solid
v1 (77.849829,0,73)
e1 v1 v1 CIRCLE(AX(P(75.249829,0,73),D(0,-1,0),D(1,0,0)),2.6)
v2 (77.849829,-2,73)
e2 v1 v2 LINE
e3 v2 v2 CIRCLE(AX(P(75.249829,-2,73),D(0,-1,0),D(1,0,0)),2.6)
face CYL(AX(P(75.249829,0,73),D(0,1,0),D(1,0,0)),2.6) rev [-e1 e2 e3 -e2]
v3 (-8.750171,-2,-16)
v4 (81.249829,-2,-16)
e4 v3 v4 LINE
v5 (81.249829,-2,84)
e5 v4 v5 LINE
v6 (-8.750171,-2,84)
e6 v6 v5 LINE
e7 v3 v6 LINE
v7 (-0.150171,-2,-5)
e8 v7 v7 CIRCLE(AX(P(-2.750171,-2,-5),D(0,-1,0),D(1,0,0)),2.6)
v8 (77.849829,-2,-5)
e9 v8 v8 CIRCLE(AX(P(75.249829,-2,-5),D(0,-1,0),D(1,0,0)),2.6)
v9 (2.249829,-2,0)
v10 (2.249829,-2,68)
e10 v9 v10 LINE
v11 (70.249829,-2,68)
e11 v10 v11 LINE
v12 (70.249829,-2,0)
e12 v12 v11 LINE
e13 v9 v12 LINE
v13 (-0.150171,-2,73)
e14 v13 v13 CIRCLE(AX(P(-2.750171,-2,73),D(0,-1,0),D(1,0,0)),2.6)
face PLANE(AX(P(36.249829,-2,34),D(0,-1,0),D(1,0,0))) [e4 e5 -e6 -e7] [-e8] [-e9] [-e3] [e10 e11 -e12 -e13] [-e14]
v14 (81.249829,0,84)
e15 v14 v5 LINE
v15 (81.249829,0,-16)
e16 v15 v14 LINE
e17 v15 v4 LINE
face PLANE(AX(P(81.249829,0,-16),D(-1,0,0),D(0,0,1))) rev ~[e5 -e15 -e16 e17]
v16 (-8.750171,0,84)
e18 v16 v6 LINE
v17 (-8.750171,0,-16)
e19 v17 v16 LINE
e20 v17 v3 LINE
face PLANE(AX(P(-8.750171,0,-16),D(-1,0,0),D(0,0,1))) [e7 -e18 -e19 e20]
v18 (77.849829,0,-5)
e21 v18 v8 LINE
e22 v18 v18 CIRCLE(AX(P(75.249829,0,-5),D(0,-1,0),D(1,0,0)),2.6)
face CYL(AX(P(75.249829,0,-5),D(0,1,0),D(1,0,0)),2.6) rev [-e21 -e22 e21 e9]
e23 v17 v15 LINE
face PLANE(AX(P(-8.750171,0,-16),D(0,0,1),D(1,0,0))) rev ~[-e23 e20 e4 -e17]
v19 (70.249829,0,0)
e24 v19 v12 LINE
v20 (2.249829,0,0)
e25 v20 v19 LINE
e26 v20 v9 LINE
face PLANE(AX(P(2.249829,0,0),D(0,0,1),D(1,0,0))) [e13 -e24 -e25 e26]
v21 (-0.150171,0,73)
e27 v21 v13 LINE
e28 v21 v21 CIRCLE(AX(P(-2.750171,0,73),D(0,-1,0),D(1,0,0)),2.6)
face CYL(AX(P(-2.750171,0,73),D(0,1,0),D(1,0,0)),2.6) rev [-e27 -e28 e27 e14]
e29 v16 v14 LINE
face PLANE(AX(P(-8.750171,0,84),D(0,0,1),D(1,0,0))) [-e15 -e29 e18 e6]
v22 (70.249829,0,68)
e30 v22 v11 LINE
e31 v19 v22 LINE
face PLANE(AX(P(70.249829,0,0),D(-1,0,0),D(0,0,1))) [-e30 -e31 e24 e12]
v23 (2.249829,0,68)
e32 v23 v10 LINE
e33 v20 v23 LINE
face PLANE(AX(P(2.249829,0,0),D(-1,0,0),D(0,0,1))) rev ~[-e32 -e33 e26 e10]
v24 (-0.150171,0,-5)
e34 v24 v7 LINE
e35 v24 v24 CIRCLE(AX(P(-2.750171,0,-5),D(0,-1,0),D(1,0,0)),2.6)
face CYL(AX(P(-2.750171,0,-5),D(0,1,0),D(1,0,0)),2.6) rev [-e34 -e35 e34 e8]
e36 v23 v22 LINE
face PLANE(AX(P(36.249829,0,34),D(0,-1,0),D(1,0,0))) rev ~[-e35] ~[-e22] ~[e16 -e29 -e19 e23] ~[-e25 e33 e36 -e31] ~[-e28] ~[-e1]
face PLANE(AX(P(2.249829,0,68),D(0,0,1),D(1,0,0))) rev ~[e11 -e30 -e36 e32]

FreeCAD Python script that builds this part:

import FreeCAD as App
import Part
import Sketcher
Q = App.Units.Quantity


def add_polygon(sketch, points):
    """Adds a closed chain of lines whose ends are joined by coincident constraints."""
    first, n = sketch.GeometryCount, len(points)
    for a, b in zip(points, points[1:] + points[:1]):
        sketch.addGeometry(Part.LineSegment(App.Vector(*a, 0), App.Vector(*b, 0)), False)
    for i in range(n):
        sketch.addConstraint(Sketcher.Constraint("Coincident", first + i, 2, first + (i + 1) % n, 1))

doc = App.newDocument("Part")
body = doc.addObject("PartDesign::Body", "Body")

# Sketch on XZ plane
sketch1 = body.newObject("Sketcher::SketchObject", "Sketch")
sketch1.AttachmentSupport = (doc.getObject("XZ_Plane"), [""])
sketch1.MapMode = "FlatFace"
add_polygon(sketch1, [(-8.750171, 84), (-8.750171, -16), (81.249829, -16), (81.249829, 84)])  # lines 0-3
sketch1.addGeometry(Part.Circle(App.Vector(-2.750171, -5, 0), App.Vector(0, 0, 1), 2.6), False)  # 4
sketch1.addGeometry(Part.Circle(App.Vector(75.249829, -5, 0), App.Vector(0, 0, 1), 2.6), False)  # 5
add_polygon(sketch1, [(70.249829, 0), (2.249829, 0), (2.249829, 68), (70.249829, 68)])  # lines 6-9
sketch1.addGeometry(Part.Circle(App.Vector(-2.750171, 73, 0), App.Vector(0, 0, 1), 2.6), False)  # 10
sketch1.addGeometry(Part.Circle(App.Vector(75.249829, 73, 0), App.Vector(0, 0, 1), 2.6), False)  # 11
sketch1.addConstraint([
    Sketcher.Constraint("Vertical", 0),
    Sketcher.Constraint("Horizontal", 1),
    Sketcher.Constraint("Vertical", 2),
    Sketcher.Constraint("Horizontal", 3),
    Sketcher.Constraint("Horizontal", 6),
    Sketcher.Constraint("Vertical", 7),
    Sketcher.Constraint("Horizontal", 8),
    Sketcher.Constraint("Vertical", 9),
    Sketcher.Constraint("Equal", 4, 5),
    Sketcher.Constraint("Equal", 5, 10),
    Sketcher.Constraint("Equal", 10, 11),
    Sketcher.Constraint("PointOnObject", 6, 2, -1),
    Sketcher.Constraint("Horizontal", 4, 3, 5, 3),
    Sketcher.Constraint("Horizontal", 10, 3, 11, 3),
    Sketcher.Constraint("Vertical", 4, 3, 10, 3),
    Sketcher.Constraint("Vertical", 5, 3, 11, 3),
    Sketcher.Constraint("Equal", 8, 7),
    Sketcher.Constraint("Diameter", 4, Q("5.2 mm")),
    Sketcher.Constraint("DistanceX", 1, 1, 1, 2, Q("90 mm")),
    Sketcher.Constraint("DistanceX", 6, 2, 6, 1, Q("68 mm")),
    Sketcher.Constraint("DistanceY", 0, 2, 0, 1, Q("100 mm")),
    Sketcher.Constraint("DistanceY", 4, 3, -1, 1, Q("5 mm")),
    Sketcher.Constraint("DistanceY", -1, 1, 10, 3, Q("73 mm")),
    Sketcher.Constraint("DistanceY", 0, 2, -1, 1, Q("16 mm")),
    Sketcher.Constraint("DistanceX", 4, 3, 5, 3, Q("78 mm")),
    Sketcher.Constraint("DistanceX", 0, 2, 4, 3, Q("6 mm")),
    Sketcher.Constraint("DistanceX", 4, 3, 6, 2, Q("5 mm")),
    Sketcher.Constraint("DistanceX", 4, 3, -1, 1, Q("2.750171 mm")),
])
pad1 = body.newObject("PartDesign::Pad", "Pad")
pad1.Profile = sketch1
pad1.Length = 2

doc.recompute()
